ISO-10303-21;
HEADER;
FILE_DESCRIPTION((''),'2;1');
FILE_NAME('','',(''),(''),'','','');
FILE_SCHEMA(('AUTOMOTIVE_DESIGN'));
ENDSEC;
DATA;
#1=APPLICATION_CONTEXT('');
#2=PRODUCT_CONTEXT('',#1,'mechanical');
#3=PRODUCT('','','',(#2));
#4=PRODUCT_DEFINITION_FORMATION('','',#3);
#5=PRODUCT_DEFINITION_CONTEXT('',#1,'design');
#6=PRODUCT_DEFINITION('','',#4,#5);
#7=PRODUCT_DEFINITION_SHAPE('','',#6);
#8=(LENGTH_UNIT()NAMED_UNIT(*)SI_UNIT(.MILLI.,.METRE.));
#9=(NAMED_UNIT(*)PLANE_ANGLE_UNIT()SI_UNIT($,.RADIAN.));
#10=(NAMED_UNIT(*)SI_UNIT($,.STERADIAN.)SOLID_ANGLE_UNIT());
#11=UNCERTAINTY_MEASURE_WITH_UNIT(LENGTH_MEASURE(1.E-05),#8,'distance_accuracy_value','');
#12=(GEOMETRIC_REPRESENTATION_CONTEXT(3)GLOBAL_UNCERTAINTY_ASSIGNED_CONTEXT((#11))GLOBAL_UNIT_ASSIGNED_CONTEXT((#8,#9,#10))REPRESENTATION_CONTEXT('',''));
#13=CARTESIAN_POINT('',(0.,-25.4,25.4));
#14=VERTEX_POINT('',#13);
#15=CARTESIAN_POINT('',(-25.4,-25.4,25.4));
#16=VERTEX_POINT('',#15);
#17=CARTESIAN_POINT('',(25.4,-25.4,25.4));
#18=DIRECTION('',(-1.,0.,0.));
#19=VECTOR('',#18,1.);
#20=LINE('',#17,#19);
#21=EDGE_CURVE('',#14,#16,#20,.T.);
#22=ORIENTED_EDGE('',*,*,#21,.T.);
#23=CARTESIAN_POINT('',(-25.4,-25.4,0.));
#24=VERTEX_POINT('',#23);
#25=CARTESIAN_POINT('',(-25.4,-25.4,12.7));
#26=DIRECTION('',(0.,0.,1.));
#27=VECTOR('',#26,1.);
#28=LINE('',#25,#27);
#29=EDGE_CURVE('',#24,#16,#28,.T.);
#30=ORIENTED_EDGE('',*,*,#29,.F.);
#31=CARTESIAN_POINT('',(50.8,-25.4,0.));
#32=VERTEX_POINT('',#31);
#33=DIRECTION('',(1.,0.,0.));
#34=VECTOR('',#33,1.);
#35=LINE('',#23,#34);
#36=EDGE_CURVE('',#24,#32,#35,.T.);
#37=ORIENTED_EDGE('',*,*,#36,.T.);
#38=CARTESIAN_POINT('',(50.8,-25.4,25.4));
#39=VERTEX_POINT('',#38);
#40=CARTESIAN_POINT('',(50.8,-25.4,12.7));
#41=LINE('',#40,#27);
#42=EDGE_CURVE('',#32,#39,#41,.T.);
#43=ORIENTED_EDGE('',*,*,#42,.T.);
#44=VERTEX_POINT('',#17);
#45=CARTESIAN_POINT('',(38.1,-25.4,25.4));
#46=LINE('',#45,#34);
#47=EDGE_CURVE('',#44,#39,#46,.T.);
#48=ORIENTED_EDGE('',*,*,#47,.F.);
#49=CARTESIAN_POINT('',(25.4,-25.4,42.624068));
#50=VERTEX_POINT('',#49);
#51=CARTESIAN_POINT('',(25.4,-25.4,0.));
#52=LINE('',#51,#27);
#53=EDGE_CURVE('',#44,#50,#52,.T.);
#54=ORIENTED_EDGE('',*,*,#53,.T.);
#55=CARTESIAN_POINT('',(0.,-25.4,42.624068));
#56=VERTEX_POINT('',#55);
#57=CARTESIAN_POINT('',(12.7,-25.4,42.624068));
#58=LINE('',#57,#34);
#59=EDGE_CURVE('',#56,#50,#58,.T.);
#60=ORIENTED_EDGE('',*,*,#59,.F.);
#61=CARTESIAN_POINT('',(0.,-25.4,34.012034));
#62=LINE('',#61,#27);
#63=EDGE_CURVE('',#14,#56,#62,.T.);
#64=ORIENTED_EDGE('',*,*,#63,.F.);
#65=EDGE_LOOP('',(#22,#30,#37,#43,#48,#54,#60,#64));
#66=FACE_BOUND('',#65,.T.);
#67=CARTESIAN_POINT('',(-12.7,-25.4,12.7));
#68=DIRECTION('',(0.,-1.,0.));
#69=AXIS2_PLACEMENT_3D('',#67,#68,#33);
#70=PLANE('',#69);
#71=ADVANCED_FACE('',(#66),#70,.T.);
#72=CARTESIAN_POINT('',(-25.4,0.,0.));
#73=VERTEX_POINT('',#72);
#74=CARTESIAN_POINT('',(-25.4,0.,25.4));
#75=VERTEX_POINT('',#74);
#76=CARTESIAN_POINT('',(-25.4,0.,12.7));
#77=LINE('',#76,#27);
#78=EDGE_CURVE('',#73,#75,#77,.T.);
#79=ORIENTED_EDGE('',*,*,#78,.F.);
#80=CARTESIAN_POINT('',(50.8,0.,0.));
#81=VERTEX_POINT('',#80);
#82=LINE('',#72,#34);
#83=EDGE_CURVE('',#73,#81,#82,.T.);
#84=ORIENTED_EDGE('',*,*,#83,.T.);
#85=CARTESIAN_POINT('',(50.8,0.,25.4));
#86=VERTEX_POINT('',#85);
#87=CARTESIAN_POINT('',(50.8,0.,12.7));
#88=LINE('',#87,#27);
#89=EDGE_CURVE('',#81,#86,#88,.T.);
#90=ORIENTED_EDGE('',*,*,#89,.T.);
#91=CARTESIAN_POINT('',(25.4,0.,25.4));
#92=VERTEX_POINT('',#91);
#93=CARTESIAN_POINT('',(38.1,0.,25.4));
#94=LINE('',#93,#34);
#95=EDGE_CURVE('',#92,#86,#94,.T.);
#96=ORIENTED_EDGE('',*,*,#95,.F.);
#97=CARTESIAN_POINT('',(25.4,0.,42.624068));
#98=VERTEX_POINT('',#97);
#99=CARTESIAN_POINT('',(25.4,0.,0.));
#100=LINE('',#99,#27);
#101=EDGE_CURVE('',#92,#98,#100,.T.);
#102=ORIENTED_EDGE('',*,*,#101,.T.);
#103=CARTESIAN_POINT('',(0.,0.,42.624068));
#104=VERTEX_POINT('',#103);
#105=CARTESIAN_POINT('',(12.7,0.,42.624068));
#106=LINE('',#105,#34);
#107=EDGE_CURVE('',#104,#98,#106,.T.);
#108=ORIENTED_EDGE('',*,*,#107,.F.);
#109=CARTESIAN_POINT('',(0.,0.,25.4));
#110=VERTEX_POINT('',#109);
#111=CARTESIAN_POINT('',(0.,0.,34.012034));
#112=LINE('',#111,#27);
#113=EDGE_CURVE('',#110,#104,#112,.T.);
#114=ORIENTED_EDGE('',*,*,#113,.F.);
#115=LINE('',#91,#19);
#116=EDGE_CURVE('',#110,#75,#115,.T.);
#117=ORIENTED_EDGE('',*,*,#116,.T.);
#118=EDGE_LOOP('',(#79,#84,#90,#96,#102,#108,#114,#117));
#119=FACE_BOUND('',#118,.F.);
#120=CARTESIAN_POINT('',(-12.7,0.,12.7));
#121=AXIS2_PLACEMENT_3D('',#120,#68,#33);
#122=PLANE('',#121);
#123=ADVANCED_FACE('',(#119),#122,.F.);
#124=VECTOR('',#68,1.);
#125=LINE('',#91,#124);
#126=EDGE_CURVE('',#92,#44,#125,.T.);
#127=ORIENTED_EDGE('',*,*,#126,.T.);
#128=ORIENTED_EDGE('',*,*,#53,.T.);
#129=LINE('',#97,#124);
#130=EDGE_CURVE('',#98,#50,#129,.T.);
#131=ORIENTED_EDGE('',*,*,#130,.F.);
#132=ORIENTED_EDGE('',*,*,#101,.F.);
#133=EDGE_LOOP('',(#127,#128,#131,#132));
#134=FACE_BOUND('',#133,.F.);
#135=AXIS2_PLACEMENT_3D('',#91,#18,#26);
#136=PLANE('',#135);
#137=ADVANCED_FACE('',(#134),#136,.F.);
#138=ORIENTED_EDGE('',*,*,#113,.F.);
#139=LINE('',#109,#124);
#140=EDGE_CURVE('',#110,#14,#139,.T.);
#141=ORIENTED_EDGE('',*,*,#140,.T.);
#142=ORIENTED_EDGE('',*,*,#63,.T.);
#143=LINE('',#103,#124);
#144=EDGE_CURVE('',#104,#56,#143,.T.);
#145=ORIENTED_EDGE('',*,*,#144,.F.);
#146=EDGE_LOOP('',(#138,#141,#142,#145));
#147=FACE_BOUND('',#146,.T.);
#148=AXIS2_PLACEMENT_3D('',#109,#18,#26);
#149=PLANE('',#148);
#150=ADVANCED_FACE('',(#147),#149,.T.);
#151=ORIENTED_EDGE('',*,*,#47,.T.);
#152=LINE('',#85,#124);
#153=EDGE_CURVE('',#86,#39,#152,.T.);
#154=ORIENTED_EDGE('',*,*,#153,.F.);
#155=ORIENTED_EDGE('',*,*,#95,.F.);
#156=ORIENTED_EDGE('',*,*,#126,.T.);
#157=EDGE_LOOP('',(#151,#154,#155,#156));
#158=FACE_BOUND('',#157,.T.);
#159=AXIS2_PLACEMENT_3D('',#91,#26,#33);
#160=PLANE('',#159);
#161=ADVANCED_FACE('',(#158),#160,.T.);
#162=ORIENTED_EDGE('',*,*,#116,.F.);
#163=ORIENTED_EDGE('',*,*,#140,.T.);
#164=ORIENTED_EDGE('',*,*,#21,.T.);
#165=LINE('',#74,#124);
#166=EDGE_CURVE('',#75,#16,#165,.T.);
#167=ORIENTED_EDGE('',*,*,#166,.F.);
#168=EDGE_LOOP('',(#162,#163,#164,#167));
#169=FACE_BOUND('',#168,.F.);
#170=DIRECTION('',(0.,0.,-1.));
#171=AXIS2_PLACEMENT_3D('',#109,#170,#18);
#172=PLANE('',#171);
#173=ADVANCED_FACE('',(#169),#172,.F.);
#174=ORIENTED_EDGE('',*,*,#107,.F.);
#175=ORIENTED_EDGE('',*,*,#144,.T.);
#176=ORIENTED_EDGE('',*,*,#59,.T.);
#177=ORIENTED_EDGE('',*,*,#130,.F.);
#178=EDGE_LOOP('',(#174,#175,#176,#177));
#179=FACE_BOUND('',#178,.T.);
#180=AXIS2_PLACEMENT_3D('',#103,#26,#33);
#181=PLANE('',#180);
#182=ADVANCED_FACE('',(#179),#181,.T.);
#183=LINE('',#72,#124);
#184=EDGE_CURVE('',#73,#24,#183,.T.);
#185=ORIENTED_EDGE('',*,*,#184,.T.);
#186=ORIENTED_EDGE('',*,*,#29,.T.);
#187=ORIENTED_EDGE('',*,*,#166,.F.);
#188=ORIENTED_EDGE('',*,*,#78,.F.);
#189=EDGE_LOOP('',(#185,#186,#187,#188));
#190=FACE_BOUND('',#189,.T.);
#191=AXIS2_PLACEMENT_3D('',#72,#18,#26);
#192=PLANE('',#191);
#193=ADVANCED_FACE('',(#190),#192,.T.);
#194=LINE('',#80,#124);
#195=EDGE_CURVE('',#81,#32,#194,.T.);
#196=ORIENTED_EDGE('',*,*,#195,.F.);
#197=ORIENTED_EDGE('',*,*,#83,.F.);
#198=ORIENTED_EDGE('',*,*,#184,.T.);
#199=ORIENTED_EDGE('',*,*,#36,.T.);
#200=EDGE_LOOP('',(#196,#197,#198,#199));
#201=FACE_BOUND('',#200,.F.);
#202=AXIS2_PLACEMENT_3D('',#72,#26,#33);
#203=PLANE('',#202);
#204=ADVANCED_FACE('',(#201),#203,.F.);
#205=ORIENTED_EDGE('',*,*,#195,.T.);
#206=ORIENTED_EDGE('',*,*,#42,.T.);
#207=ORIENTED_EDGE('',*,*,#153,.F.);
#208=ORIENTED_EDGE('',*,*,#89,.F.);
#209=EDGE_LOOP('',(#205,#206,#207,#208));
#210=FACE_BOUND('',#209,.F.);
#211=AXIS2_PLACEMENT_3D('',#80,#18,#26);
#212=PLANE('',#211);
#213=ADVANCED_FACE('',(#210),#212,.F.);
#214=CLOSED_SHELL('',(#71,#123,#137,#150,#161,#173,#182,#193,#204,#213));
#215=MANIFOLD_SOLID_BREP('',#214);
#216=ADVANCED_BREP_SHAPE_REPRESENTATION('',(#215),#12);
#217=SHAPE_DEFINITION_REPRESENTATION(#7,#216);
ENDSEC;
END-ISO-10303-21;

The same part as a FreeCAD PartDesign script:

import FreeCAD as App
import Part
import Sketcher
from FreeCAD import Vector
Q = App.Units.Quantity

doc = App.newDocument("Part")
body = doc.addObject("PartDesign::Body", "Body")

# Sketch on XZ plane
sketch1 = body.newObject("Sketcher::SketchObject", "Sketch")
sketch1.AttachmentSupport = (doc.getObject("XZ_Plane"), [""])
sketch1.MapMode = "FlatFace"
sketch1.addGeometry(Part.LineSegment(Vector(-25, 25, 0), Vector(-25, 0, 0)), False)
sketch1.addGeometry(Part.LineSegment(Vector(-25, 0, 0), Vector(51, 0, 0)), False)
sketch1.addGeometry(Part.LineSegment(Vector(51, 0, 0), Vector(51, 25, 0)), False)
sketch1.addGeometry(Part.LineSegment(Vector(51, 25, 0), Vector(25, 25, 0)), False)
sketch1.addGeometry(Part.LineSegment(Vector(25, 25, 0), Vector(25, 43, 0)), False)
sketch1.addGeometry(Part.LineSegment(Vector(25, 43, 0), Vector(0, 43, 0)), False)
sketch1.addGeometry(Part.LineSegment(Vector(0, 43, 0), Vector(0, 25, 0)), False)
sketch1.addGeometry(Part.LineSegment(Vector(0, 25, 0), Vector(-25, 25, 0)), False)
sketch1.addConstraint(Sketcher.Constraint("Coincident", 0, 2, 1, 1))
sketch1.addConstraint(Sketcher.Constraint("Coincident", 1, 2, 2, 1))
sketch1.addConstraint(Sketcher.Constraint("Coincident", 2, 2, 3, 1))
sketch1.addConstraint(Sketcher.Constraint("Coincident", 3, 2, 4, 1))
sketch1.addConstraint(Sketcher.Constraint("Coincident", 4, 2, 5, 1))
sketch1.addConstraint(Sketcher.Constraint("Coincident", 5, 2, 6, 1))
sketch1.addConstraint(Sketcher.Constraint("Coincident", 6, 2, 7, 1))
sketch1.addConstraint(Sketcher.Constraint("Coincident", 7, 2, 0, 1))
sketch1.addConstraint(Sketcher.Constraint("Vertical", 0))
sketch1.addConstraint(Sketcher.Constraint("Horizontal", 1))
sketch1.addConstraint(Sketcher.Constraint("Vertical", 2))
sketch1.addConstraint(Sketcher.Constraint("Horizontal", 3))
sketch1.addConstraint(Sketcher.Constraint("Vertical", 4))
sketch1.addConstraint(Sketcher.Constraint("Horizontal", 5))
sketch1.addConstraint(Sketcher.Constraint("Vertical", 6))
sketch1.addConstraint(Sketcher.Constraint("Horizontal", 7))
sketch1.addConstraint(Sketcher.Constraint("Symmetric", 3, 2, 7, 2, -2))
sketch1.addConstraint(Sketcher.Constraint("PointOnObject", 0, 2, -1))
sketch1.addConstraint(Sketcher.Constraint("PointOnObject", 5, 2, -2))
sketch1.addConstraint(Sketcher.Constraint("Equal", 3, 5))
sketch1.addConstraint(Sketcher.Constraint("Equal", 7, 0))
sketch1.addConstraint(Sketcher.Constraint("DistanceX", 1, 1, 1, 2, Q("3 in")))
sketch1.addConstraint(Sketcher.Constraint("DistanceY", 4, 1, 4, 2, 17.224068))
pad1 = body.newObject("PartDesign::Pad", "Pad")
pad1.Profile = sketch1
pad1.Length = Q("1 in")

doc.recompute()
